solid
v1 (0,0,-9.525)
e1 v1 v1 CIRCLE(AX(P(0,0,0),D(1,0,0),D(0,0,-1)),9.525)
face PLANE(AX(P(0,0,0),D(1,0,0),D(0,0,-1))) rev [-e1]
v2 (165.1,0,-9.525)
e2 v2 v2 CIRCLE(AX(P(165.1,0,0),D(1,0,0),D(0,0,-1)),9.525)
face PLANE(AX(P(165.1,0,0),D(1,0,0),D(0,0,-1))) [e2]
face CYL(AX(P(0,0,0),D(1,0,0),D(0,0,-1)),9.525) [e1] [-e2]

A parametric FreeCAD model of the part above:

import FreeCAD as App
import Part
import Sketcher
Q = App.Units.Quantity

doc = App.newDocument("Part")
params = doc.addObject("Spreadsheet::Sheet", "Params")
for row, (alias, value) in enumerate([
    ("sketch1_diameter", "0.75 in"),
    ("sketch2_width", "6.5 in"),
], start=1):
    params.set(f"A{row}", alias)
    params.set(f"B{row}", "=" + value)
    params.setAlias(f"B{row}", alias)

body = doc.addObject("PartDesign::Body", "Body")

sketch1 = body.newObject("Sketcher::SketchObject", "Sketch")
sketch1.AttachmentSupport = (doc.getObject("YZ_Plane"), [""])
sketch1.MapMode = "FlatFace"
sketch1.addGeometry(Part.Circle(App.Vector(0, 0, 0), App.Vector(0, 0, 1), 10), False)
sketch1.addConstraint([
    Sketcher.Constraint("Coincident", 0, 3, -1, 1),
    Sketcher.Constraint("Diameter", 0, Q("0.75 in")),
])
sketch1.setExpression("Constraints[1]", "Params.sketch1_diameter")

sketch2 = body.newObject("Sketcher::SketchObject", "Sketch001")
sketch2.AttachmentSupport = (doc.getObject("XY_Plane"), [""])
sketch2.MapMode = "FlatFace"
sketch2.addGeometry(Part.LineSegment(App.Vector(0, 0, 0), App.Vector(165, 0, 0)), False)
sketch2.addConstraint([
    Sketcher.Constraint("Horizontal", 0),
    Sketcher.Constraint("Coincident", 0, 1, -1, 1),
    Sketcher.Constraint("DistanceX", 0, 1, 0, 2, Q("6.5 in")),
])
sketch2.setExpression("Constraints[2]", "Params.sketch2_width")
doc.recompute()

additivepipe = body.newObject("PartDesign::AdditivePipe", "AdditivePipe")
additivepipe.Profile = sketch1
additivepipe.Spine = (sketch2, ["Edge1"])

doc.recompute()
